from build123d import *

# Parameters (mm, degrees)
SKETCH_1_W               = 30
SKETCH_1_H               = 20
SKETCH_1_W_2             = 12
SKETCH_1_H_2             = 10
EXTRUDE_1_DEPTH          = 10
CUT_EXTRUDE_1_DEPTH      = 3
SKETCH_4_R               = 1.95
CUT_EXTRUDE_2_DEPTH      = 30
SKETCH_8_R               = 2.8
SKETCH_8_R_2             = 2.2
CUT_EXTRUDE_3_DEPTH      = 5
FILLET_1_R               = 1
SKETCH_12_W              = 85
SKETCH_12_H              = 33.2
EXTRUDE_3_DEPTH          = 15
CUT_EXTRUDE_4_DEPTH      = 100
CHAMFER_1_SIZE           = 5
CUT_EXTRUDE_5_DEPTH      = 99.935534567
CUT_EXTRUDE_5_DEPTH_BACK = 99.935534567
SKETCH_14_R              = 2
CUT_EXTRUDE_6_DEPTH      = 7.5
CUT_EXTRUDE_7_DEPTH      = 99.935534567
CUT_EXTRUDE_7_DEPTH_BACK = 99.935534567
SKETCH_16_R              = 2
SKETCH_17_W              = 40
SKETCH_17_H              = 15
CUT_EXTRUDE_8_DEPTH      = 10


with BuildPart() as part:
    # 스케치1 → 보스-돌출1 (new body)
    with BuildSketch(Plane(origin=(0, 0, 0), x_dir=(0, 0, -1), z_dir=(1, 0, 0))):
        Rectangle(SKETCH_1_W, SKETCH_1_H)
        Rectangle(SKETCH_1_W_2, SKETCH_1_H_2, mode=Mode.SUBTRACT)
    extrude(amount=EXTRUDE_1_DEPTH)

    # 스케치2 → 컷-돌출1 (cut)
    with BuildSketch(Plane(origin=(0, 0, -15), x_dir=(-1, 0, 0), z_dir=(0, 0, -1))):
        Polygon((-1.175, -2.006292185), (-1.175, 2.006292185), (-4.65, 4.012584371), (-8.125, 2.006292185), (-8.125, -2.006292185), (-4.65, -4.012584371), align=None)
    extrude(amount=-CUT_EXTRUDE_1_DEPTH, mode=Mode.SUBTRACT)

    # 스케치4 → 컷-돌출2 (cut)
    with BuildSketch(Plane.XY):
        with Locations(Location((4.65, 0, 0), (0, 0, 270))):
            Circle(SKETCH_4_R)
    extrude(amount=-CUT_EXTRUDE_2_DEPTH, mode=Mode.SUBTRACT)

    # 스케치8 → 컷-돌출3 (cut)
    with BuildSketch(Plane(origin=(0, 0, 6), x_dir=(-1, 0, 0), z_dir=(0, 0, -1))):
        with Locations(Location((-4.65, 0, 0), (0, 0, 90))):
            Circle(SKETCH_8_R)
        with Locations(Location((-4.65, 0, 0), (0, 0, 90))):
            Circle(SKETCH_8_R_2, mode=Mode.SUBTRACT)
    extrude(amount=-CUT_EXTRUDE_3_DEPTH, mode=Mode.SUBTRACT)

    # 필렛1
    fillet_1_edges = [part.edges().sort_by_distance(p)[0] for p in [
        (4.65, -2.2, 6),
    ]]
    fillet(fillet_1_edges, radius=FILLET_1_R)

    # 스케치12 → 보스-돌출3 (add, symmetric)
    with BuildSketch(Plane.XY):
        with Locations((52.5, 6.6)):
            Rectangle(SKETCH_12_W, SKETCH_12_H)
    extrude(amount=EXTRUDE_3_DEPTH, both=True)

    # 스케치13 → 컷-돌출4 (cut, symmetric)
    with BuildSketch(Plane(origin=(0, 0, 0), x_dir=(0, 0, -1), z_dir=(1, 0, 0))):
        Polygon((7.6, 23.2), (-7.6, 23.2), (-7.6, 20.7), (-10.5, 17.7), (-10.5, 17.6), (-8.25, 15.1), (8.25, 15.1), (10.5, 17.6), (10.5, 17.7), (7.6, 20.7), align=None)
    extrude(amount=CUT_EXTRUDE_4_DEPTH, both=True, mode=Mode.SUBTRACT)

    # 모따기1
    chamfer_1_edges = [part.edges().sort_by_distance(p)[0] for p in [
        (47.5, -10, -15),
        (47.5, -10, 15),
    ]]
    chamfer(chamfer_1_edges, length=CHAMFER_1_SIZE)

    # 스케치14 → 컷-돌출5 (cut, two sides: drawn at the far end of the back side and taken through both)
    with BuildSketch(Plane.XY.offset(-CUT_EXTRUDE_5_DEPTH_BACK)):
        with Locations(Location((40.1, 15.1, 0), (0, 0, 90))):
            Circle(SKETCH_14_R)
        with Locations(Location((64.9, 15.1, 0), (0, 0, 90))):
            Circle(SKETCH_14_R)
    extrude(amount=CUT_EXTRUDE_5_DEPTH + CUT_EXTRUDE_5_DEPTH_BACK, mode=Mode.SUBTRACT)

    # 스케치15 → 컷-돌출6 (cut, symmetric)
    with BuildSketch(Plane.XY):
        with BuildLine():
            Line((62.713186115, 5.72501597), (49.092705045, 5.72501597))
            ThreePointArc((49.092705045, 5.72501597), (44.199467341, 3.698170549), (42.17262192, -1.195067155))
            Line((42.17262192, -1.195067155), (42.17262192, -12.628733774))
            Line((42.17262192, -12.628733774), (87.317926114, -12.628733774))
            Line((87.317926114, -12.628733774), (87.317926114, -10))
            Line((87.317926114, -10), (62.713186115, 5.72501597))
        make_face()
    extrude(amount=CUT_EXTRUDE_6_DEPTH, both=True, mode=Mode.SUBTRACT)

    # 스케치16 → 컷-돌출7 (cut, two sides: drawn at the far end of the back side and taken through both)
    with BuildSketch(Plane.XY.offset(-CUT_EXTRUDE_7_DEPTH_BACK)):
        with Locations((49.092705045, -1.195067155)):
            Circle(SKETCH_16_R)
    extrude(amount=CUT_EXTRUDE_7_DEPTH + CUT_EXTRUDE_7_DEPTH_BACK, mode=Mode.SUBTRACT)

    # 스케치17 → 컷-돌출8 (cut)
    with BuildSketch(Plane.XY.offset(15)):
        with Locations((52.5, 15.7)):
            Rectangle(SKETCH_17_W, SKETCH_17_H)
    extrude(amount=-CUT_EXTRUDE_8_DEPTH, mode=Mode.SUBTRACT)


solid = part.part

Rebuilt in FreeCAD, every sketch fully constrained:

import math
import FreeCAD as App
import Part
import Sketcher
from FreeCAD import Vector
Q = App.Units.Quantity


def edges_at(feature, points):
    """Names of the edges that pass closest to the given points."""
    edges = feature.Shape.Edges
    near = lambda p: min(range(len(edges)), key=lambda i: edges[i].distToShape(Part.Vertex(*p))[0])
    return sorted({f"Edge{near(p) + 1}" for p in points})

doc = App.newDocument("Part")
body = doc.addObject("PartDesign::Body", "Body")

sketch1 = body.newObject("Sketcher::SketchObject", "Sketch")
sketch1.AttachmentSupport = (doc.getObject("YZ_Plane"), [""])
sketch1.MapMode = "FlatFace"
sketch1.addGeometry([
    Part.LineSegment(Vector(10, 15, 0), Vector(-10, 15, 0)),
    Part.LineSegment(Vector(-10, 15, 0), Vector(-10, -15, 0)),
    Part.LineSegment(Vector(-10, -15, 0), Vector(10, -15, 0)),
    Part.LineSegment(Vector(10, -15, 0), Vector(10, 15, 0)),
    Part.LineSegment(Vector(-5, -6, 0), Vector(-5, 6, 0)),
    Part.LineSegment(Vector(-5, 6, 0), Vector(5, 6, 0)),
    Part.LineSegment(Vector(5, 6, 0), Vector(5, -6, 0)),
    Part.LineSegment(Vector(5, -6, 0), Vector(-5, -6, 0)),
], False)
sketch1.addConstraint([
    Sketcher.Constraint("Coincident", 0, 2, 1, 1),
    Sketcher.Constraint("Coincident", 1, 2, 2, 1),
    Sketcher.Constraint("Coincident", 2, 2, 3, 1),
    Sketcher.Constraint("Coincident", 3, 2, 0, 1),
    Sketcher.Constraint("Coincident", 4, 2, 5, 1),
    Sketcher.Constraint("Coincident", 5, 2, 6, 1),
    Sketcher.Constraint("Coincident", 6, 2, 7, 1),
    Sketcher.Constraint("Coincident", 7, 2, 4, 1),
    Sketcher.Constraint("Horizontal", 0),
    Sketcher.Constraint("Vertical", 1),
    Sketcher.Constraint("Horizontal", 2),
    Sketcher.Constraint("Vertical", 3),
    Sketcher.Constraint("Vertical", 4),
    Sketcher.Constraint("Horizontal", 5),
    Sketcher.Constraint("Vertical", 6),
    Sketcher.Constraint("Horizontal", 7),
    Sketcher.Constraint("Symmetric", 0, 2, 2, 2, -1, 1),
    Sketcher.Constraint("Symmetric", 4, 2, 6, 2, -1, 1),
    Sketcher.Constraint("DistanceX", 0, 2, 0, 1, Q("20 mm")),
    Sketcher.Constraint("DistanceX", 5, 1, 5, 2, Q("10 mm")),
    Sketcher.Constraint("DistanceY", 1, 2, 1, 1, Q("30 mm")),
    Sketcher.Constraint("DistanceY", 4, 1, 4, 2, Q("12 mm")),
])
pad1 = body.newObject("PartDesign::Pad", "Pad")
pad1.Profile = sketch1
pad1.Length = 10

sketch2 = body.newObject("Sketcher::SketchObject", "Sketch001")
sketch2.AttachmentSupport = (doc.getObject("XY_Plane"), [""])
sketch2.MapMode = "FlatFace"
sketch2.AttachmentOffset = App.Placement(Vector(0, 0, -15), App.Rotation())
sketch2.addGeometry([
    Part.LineSegment(Vector(1.2, -2, 0), Vector(1.2, 2, 0)),
    Part.LineSegment(Vector(1.2, 2, 0), Vector(4.7, 4, 0)),
    Part.LineSegment(Vector(4.7, 4, 0), Vector(8.1, 2, 0)),
    Part.LineSegment(Vector(8.1, 2, 0), Vector(8.1, -2, 0)),
    Part.LineSegment(Vector(8.1, -2, 0), Vector(4.7, -4, 0)),
    Part.LineSegment(Vector(4.7, -4, 0), Vector(1.2, -2, 0)),
], False)
sketch2.addConstraint([
    Sketcher.Constraint("Coincident", 0, 2, 1, 1),
    Sketcher.Constraint("Coincident", 1, 2, 2, 1),
    Sketcher.Constraint("Coincident", 2, 2, 3, 1),
    Sketcher.Constraint("Coincident", 3, 2, 4, 1),
    Sketcher.Constraint("Coincident", 4, 2, 5, 1),
    Sketcher.Constraint("Coincident", 5, 2, 0, 1),
    Sketcher.Constraint("Vertical", 0),
    Sketcher.Constraint("Vertical", 3),
    Sketcher.Constraint("Symmetric", 1, 2, 4, 2, -1),
    Sketcher.Constraint("Parallel", 1, 4),
    Sketcher.Constraint("Parallel", 2, 5),
    Sketcher.Constraint("Horizontal", 0, 2, 2, 2),
    Sketcher.Constraint("Horizontal", 3, 2, 5, 2),
    Sketcher.Constraint("Angle", 1, Q("30 deg")),
    Sketcher.Constraint("DistanceX", -1, 1, 1, 2, Q("4.65 mm")),
    Sketcher.Constraint("DistanceX", 0, 2, 2, 2, Q("6.95 mm")),
    Sketcher.Constraint("DistanceY", 0, 1, 0, 2, Q("4.012584 mm")),
])
pocket1 = body.newObject("PartDesign::Pocket", "Pocket")
pocket1.Profile = sketch2
pocket1.Length = 3
pocket1.Reversed = True

sketch3 = body.newObject("Sketcher::SketchObject", "Sketch002")
sketch3.AttachmentSupport = (doc.getObject("XY_Plane"), [""])
sketch3.MapMode = "FlatFace"
sketch3.addGeometry(Part.Circle(Vector(4.7, 0, 0), Vector(0, 0, 1), 1.9), False)
sketch3.addConstraint([
    Sketcher.Constraint("PointOnObject", 0, 3, -1),
    Sketcher.Constraint("Diameter", 0, Q("3.9 mm")),
    Sketcher.Constraint("DistanceX", -1, 1, 0, 3, Q("4.65 mm")),
])
pocket2 = body.newObject("PartDesign::Pocket", "Pocket001")
pocket2.Profile = sketch3
pocket2.Length = 30

sketch4 = body.newObject("Sketcher::SketchObject", "Sketch003")
sketch4.AttachmentSupport = (doc.getObject("XY_Plane"), [""])
sketch4.MapMode = "FlatFace"
sketch4.AttachmentOffset = App.Placement(Vector(0, 0, 6), App.Rotation())
sketch4.addGeometry([
    Part.Circle(Vector(4.7, 0, 0), Vector(0, 0, 1), 2.8),
    Part.Circle(Vector(4.7, 0, 0), Vector(0, 0, 1), 2.2),
], False)
sketch4.addConstraint([
    Sketcher.Constraint("Coincident", 1, 3, 0, 3),
    Sketcher.Constraint("PointOnObject", 0, 3, -1),
    Sketcher.Constraint("Diameter", 0, Q("5.6 mm")),
    Sketcher.Constraint("Diameter", 1, Q("4.4 mm")),
    Sketcher.Constraint("DistanceX", -1, 1, 0, 3, Q("4.65 mm")),
])
pocket3 = body.newObject("PartDesign::Pocket", "Pocket002")
pocket3.Profile = sketch4
pocket3.Length = 5
pocket3.Reversed = True
doc.recompute()

fillet = body.newObject("PartDesign::Fillet", "Fillet")
fillet.Base = (pocket3, edges_at(pocket3, [(4.65, -2.2, 6)]))
fillet.Radius = 1

sketch5 = body.newObject("Sketcher::SketchObject", "Sketch004")
sketch5.AttachmentSupport = (doc.getObject("XY_Plane"), [""])
sketch5.MapMode = "FlatFace"
sketch5.addGeometry([
    Part.LineSegment(Vector(10, 23, 0), Vector(10, -10, 0)),
    Part.LineSegment(Vector(10, -10, 0), Vector(95, -10, 0)),
    Part.LineSegment(Vector(95, -10, 0), Vector(95, 23, 0)),
    Part.LineSegment(Vector(95, 23, 0), Vector(10, 23, 0)),
], False)
sketch5.addConstraint([
    Sketcher.Constraint("Coincident", 0, 2, 1, 1),
    Sketcher.Constraint("Coincident", 1, 2, 2, 1),
    Sketcher.Constraint("Coincident", 2, 2, 3, 1),
    Sketcher.Constraint("Coincident", 3, 2, 0, 1),
    Sketcher.Constraint("Vertical", 0),
    Sketcher.Constraint("Horizontal", 1),
    Sketcher.Constraint("Vertical", 2),
    Sketcher.Constraint("Horizontal", 3),
    Sketcher.Constraint("DistanceX", 1, 1, 1, 2, Q("85 mm")),
    Sketcher.Constraint("DistanceY", 0, 2, 0, 1, Q("33.2 mm")),
    Sketcher.Constraint("DistanceX", -1, 1, 0, 2, Q("10 mm")),
    Sketcher.Constraint("DistanceY", 0, 2, -1, 1, Q("10 mm")),
])
pad2 = body.newObject("PartDesign::Pad", "Pad001")
pad2.Profile = sketch5
pad2.Length = 30
pad2.Midplane = True

sketch6 = body.newObject("Sketcher::SketchObject", "Sketch005")
sketch6.AttachmentSupport = (doc.getObject("YZ_Plane"), [""])
sketch6.MapMode = "FlatFace"
sketch6.addGeometry([
    Part.LineSegment(Vector(23.2, -7.6, 0), Vector(23.2, 7.6, 0)),
    Part.LineSegment(Vector(23.2, 7.6, 0), Vector(20.7, 7.6, 0)),
    Part.LineSegment(Vector(20.7, 7.6, 0), Vector(17.7, 10.5, 0)),
    Part.LineSegment(Vector(17.7, 10.5, 0), Vector(17.6, 10.5, 0)),
    Part.LineSegment(Vector(17.6, 10.5, 0), Vector(15.1, 8.25, 0)),
    Part.LineSegment(Vector(15.1, 8.25, 0), Vector(15.1, -8.25, 0)),
    Part.LineSegment(Vector(15.1, -8.25, 0), Vector(17.6, -10.5, 0)),
    Part.LineSegment(Vector(17.6, -10.5, 0), Vector(17.7, -10.5, 0)),
    Part.LineSegment(Vector(17.7, -10.5, 0), Vector(20.7, -7.6, 0)),
    Part.LineSegment(Vector(20.7, -7.6, 0), Vector(23.2, -7.6, 0)),
], False)
sketch6.addConstraint([
    Sketcher.Constraint("Coincident", 0, 2, 1, 1),
    Sketcher.Constraint("Coincident", 1, 2, 2, 1),
    Sketcher.Constraint("Coincident", 2, 2, 3, 1),
    Sketcher.Constraint("Coincident", 3, 2, 4, 1),
    Sketcher.Constraint("Coincident", 4, 2, 5, 1),
    Sketcher.Constraint("Coincident", 5, 2, 6, 1),
    Sketcher.Constraint("Coincident", 6, 2, 7, 1),
    Sketcher.Constraint("Coincident", 7, 2, 8, 1),
    Sketcher.Constraint("Coincident", 8, 2, 9, 1),
    Sketcher.Constraint("Coincident", 9, 2, 0, 1),
    Sketcher.Constraint("Vertical", 0),
    Sketcher.Constraint("Horizontal", 1),
    Sketcher.Constraint("Horizontal", 3),
    Sketcher.Constraint("Vertical", 5),
    Sketcher.Constraint("Horizontal", 7),
    Sketcher.Constraint("Horizontal", 9),
    Sketcher.Constraint("Symmetric", 3, 2, 6, 2, -1),
    Sketcher.Constraint("Symmetric", 1, 2, 8, 2, -1),
    Sketcher.Constraint("Vertical", 2, 2, 7, 2),
    Sketcher.Constraint("Equal", 4, 6),
    Sketcher.Constraint("DistanceX", 1, 2, 1, 1, Q("2.5 mm")),
    Sketcher.Constraint("DistanceX", 3, 2, 3, 1, Q("0.1 mm")),
    Sketcher.Constraint("DistanceY", 0, 1, 0, 2, Q("15.2 mm")),
    Sketcher.Constraint("DistanceY", 5, 2, 5, 1, Q("16.5 mm")),
    Sketcher.Constraint("DistanceX", 2, 2, 1, 2, Q("3 mm")),
    Sketcher.Constraint("DistanceY", 6, 2, 3, 2, Q("21 mm")),
    Sketcher.Constraint("DistanceX", -1, 1, 0, 2, Q("23.2 mm")),
    Sketcher.Constraint("DistanceX", -1, 1, 4, 2, Q("15.1 mm")),
])
pocket4 = body.newObject("PartDesign::Pocket", "Pocket003")
pocket4.Profile = sketch6
pocket4.Length = 200
pocket4.Midplane = True
doc.recompute()

chamfer = body.newObject("PartDesign::Chamfer", "Chamfer")
chamfer.Base = (pocket4, edges_at(pocket4, [(47.5, -10, -15), (47.5, -10, 15)]))
chamfer.Size = 5

sketch7 = body.newObject("Sketcher::SketchObject", "Sketch006")
sketch7.AttachmentSupport = (doc.getObject("XY_Plane"), [""])
sketch7.MapMode = "FlatFace"
sketch7.addGeometry([
    Part.Circle(Vector(40.1, 15.1, 0), Vector(0, 0, 1), 2),
    Part.Circle(Vector(64.9, 15.1, 0), Vector(0, 0, 1), 2),
], False)
sketch7.addConstraint([
    Sketcher.Constraint("Equal", 0, 1),
    Sketcher.Constraint("Horizontal", 0, 3, 1, 3),
    Sketcher.Constraint("Diameter", 0, Q("4 mm")),
    Sketcher.Constraint("DistanceX", -1, 1, 0, 3, Q("40.1 mm")),
    Sketcher.Constraint("DistanceY", -1, 1, 0, 3, Q("15.1 mm")),
    Sketcher.Constraint("DistanceX", -1, 1, 1, 3, Q("64.9 mm")),
])
pocket5 = body.newObject("PartDesign::Pocket", "Pocket004")
pocket5.Profile = sketch7
pocket5.Type = "ThroughAll"
pocket5.Midplane = True

sketch8 = body.newObject("Sketcher::SketchObject", "Sketch007")
sketch8.AttachmentSupport = (doc.getObject("XY_Plane"), [""])
sketch8.MapMode = "FlatFace"
sketch8.addGeometry([
    Part.LineSegment(Vector(62.7, 5.7, 0), Vector(49.1, 5.7, 0)),
    Part.ArcOfCircle(Part.Circle(Vector(49.1, -1.2, 0), Vector(0, 0, 1), 6.9), math.radians(90), math.radians(180)),
    Part.LineSegment(Vector(42.2, -1.2, 0), Vector(42.2, -12.6, 0)),
    Part.LineSegment(Vector(42.2, -12.6, 0), Vector(87.3, -12.6, 0)),
    Part.LineSegment(Vector(87.3, -12.6, 0), Vector(87.3, -10, 0)),
    Part.LineSegment(Vector(87.3, -10, 0), Vector(62.7, 5.7, 0)),
], False)
sketch8.addConstraint([
    Sketcher.Constraint("Tangent", 0, 2, 1, 1),
    Sketcher.Constraint("Tangent", 1, 2, 2, 1),
    Sketcher.Constraint("Coincident", 2, 2, 3, 1),
    Sketcher.Constraint("Coincident", 3, 2, 4, 1),
    Sketcher.Constraint("Coincident", 4, 2, 5, 1),
    Sketcher.Constraint("Coincident", 5, 2, 0, 1),
    Sketcher.Constraint("Horizontal", 0),
    Sketcher.Constraint("Vertical", 2),
    Sketcher.Constraint("Horizontal", 3),
    Sketcher.Constraint("Vertical", 4),
    Sketcher.Constraint("DistanceY", 4, 2, -1, 1, Q("10 mm")),
    Sketcher.Constraint("Radius", 1, Q("6.920083 mm")),
    Sketcher.Constraint("DistanceX", 0, 2, 0, 1, Q("13.620481 mm")),
    Sketcher.Constraint("DistanceX", 3, 1, 3, 2, Q("45.145304 mm")),
    Sketcher.Constraint("DistanceY", 2, 2, 2, 1, Q("11.433667 mm")),
    Sketcher.Constraint("DistanceY", 4, 1, 4, 2, Q("2.628734 mm")),
    Sketcher.Constraint("DistanceX", -1, 1, 1, 2, Q("42.172622 mm")),
])
pocket6 = body.newObject("PartDesign::Pocket", "Pocket005")
pocket6.Profile = sketch8
pocket6.Length = 15
pocket6.Midplane = True

sketch9 = body.newObject("Sketcher::SketchObject", "Sketch008")
sketch9.AttachmentSupport = (doc.getObject("XY_Plane"), [""])
sketch9.MapMode = "FlatFace"
sketch9.addGeometry(Part.Circle(Vector(49.1, -1.2, 0), Vector(0, 0, 1), 2), False)
sketch9.addConstraint([
    Sketcher.Constraint("Diameter", 0, Q("4 mm")),
    Sketcher.Constraint("DistanceX", -1, 1, 0, 3, Q("49.092705 mm")),
    Sketcher.Constraint("DistanceY", 0, 3, -1, 1, Q("1.195067 mm")),
])
pocket7 = body.newObject("PartDesign::Pocket", "Pocket006")
pocket7.Profile = sketch9
pocket7.Type = "ThroughAll"
pocket7.Midplane = True

sketch10 = body.newObject("Sketcher::SketchObject", "Sketch009")
sketch10.AttachmentSupport = (doc.getObject("XY_Plane"), [""])
sketch10.MapMode = "FlatFace"
sketch10.AttachmentOffset = App.Placement(Vector(0, 0, 15), App.Rotation())
sketch10.addGeometry([
    Part.LineSegment(Vector(32, 23, 0), Vector(32, 8, 0)),
    Part.LineSegment(Vector(32, 8, 0), Vector(72, 8, 0)),
    Part.LineSegment(Vector(72, 8, 0), Vector(72, 23, 0)),
    Part.LineSegment(Vector(72, 23, 0), Vector(32, 23, 0)),
], False)
sketch10.addConstraint([
    Sketcher.Constraint("Coincident", 0, 2, 1, 1),
    Sketcher.Constraint("Coincident", 1, 2, 2, 1),
    Sketcher.Constraint("Coincident", 2, 2, 3, 1),
    Sketcher.Constraint("Coincident", 3, 2, 0, 1),
    Sketcher.Constraint("Vertical", 0),
    Sketcher.Constraint("Horizontal", 1),
    Sketcher.Constraint("Vertical", 2),
    Sketcher.Constraint("Horizontal", 3),
    Sketcher.Constraint("DistanceX", 1, 1, 1, 2, Q("40 mm")),
    Sketcher.Constraint("DistanceY", 0, 2, 0, 1, Q("15 mm")),
    Sketcher.Constraint("DistanceX", -1, 1, 0, 2, Q("32.5 mm")),
    Sketcher.Constraint("DistanceY", -1, 1, 0, 2, Q("8.2 mm")),
])
pocket8 = body.newObject("PartDesign::Pocket", "Pocket007")
pocket8.Profile = sketch10
pocket8.Length = 10

doc.recompute()
